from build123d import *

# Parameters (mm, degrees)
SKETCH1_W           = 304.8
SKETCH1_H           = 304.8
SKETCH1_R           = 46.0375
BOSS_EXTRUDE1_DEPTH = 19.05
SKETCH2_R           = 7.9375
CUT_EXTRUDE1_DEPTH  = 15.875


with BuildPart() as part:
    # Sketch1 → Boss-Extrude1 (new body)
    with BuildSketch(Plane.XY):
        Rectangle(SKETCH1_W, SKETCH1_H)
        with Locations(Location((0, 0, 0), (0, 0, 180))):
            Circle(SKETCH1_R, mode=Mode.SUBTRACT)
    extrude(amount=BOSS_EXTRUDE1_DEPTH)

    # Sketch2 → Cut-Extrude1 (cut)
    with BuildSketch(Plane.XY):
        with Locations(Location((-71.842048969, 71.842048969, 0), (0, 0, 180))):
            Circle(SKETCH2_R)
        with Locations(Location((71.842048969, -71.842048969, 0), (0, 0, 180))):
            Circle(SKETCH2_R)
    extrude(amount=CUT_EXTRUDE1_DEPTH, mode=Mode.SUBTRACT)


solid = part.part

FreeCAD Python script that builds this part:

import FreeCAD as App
import Part
import Sketcher

V = App.Vector
Q = App.Units.Quantity

doc = App.newDocument("Part")
body = doc.addObject("PartDesign::Body", "Body")

sketch1 = doc.addObject("Sketcher::SketchObject", "Sketch")
body.addObject(sketch1)
sketch1.AttachmentSupport = (doc.XY_Plane, [""])
sketch1.MapMode = "FlatFace"
sketch1.addGeometry([
    Part.LineSegment(V(-152, 152, 0), V(-152, -152, 0)),
    Part.LineSegment(V(-152, -152, 0), V(152, -152, 0)),
    Part.LineSegment(V(152, -152, 0), V(152, 152, 0)),
    Part.LineSegment(V(152, 152, 0), V(-152, 152, 0)),
    Part.Circle(V(0, 0, 0), V(0, 0, 1), 46),
], False)
sketch1.addConstraint([
    Sketcher.Constraint("Coincident", 0, 2, 1, 1),
    Sketcher.Constraint("Coincident", 1, 2, 2, 1),
    Sketcher.Constraint("Coincident", 2, 2, 3, 1),
    Sketcher.Constraint("Coincident", 3, 2, 0, 1),
    Sketcher.Constraint("Vertical", 0),
    Sketcher.Constraint("Horizontal", 1),
    Sketcher.Constraint("Vertical", 2),
    Sketcher.Constraint("Horizontal", 3),
    Sketcher.Constraint("Coincident", 4, 3, -1, 1),
    Sketcher.Constraint("Symmetric", 0, 2, 2, 2, -1, 1),
    Sketcher.Constraint("Equal", 3, 0),
    Sketcher.Constraint("DistanceX", 1, 1, 1, 2, Q("12 in")),
    Sketcher.Constraint("Diameter", 4, Q("3.625 in")),
])
pad1 = doc.addObject("PartDesign::Pad", "Pad")
body.addObject(pad1)
pad1.Profile = sketch1
pad1.Length = Q("0.75 in")

sketch2 = doc.addObject("Sketcher::SketchObject", "Sketch001")
body.addObject(sketch2)
sketch2.AttachmentSupport = (doc.XY_Plane, [""])
sketch2.MapMode = "FlatFace"
sketch2.addGeometry([
    Part.Circle(V(-72, 72, 0), V(0, 0, 1), 8),
    Part.Circle(V(72, -72, 0), V(0, 0, 1), 8),
], False)
sketch2.addConstraint([
    Sketcher.Constraint("Equal", 0, 1),
    Sketcher.Constraint("Symmetric", 0, 3, 1, 3, -1, 1),
    Sketcher.Constraint("Diameter", 0, Q("0.625 in")),
    Sketcher.Constraint("DistanceX", 0, 3, -1, 1, 71.842049),
    Sketcher.Constraint("DistanceY", -1, 1, 0, 3, 71.842049),
])
pocket1 = doc.addObject("PartDesign::Pocket", "Pocket")
body.addObject(pocket1)
pocket1.Profile = sketch2
pocket1.Length = Q("0.625 in")
pocket1.Reversed = True

doc.recompute()
